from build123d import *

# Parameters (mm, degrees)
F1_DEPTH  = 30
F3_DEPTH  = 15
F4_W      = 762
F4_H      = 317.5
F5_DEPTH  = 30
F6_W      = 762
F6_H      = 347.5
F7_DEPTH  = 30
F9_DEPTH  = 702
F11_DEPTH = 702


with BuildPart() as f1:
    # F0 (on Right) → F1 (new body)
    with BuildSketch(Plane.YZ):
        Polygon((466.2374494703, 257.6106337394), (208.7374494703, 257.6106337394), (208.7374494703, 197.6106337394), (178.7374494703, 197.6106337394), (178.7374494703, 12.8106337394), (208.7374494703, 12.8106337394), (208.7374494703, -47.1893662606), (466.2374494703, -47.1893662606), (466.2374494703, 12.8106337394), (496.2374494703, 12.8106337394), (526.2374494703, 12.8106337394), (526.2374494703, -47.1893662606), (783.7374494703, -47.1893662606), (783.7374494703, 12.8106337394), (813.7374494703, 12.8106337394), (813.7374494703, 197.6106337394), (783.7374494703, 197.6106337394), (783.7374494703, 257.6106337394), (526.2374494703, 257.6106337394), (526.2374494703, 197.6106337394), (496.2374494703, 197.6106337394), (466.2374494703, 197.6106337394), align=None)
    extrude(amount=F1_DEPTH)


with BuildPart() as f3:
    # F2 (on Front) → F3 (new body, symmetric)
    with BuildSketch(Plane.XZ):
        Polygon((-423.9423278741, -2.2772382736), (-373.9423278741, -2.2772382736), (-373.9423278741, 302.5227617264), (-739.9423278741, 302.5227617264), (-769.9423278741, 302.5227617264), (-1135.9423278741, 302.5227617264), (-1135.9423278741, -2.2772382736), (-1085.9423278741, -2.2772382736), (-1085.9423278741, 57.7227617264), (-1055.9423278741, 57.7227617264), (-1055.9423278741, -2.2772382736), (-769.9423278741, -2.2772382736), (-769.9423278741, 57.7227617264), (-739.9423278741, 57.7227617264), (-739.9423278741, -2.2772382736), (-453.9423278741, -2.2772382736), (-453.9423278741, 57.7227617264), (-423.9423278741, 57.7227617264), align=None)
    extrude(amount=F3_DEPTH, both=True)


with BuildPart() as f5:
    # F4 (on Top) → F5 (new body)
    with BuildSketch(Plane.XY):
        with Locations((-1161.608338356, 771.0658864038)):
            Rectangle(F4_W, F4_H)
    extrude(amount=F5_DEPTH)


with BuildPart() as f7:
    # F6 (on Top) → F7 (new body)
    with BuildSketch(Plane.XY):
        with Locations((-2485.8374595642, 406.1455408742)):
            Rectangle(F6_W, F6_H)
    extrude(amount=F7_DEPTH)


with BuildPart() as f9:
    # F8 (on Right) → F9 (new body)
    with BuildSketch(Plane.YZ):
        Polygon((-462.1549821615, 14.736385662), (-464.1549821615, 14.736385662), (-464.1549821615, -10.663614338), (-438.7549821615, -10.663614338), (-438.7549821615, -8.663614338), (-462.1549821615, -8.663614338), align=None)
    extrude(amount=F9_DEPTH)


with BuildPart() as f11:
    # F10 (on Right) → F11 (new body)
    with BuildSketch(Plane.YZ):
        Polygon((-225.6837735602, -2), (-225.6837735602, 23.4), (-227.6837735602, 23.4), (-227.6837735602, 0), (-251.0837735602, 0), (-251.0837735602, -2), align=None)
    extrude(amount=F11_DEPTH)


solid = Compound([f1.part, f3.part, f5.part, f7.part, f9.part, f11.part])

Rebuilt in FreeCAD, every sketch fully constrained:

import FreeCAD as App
import Part
import Sketcher

V = App.Vector
Q = App.Units.Quantity

doc = App.newDocument("Part")
body = doc.addObject("PartDesign::Body", "Body")

# Sketch on YZ plane
sketch1 = body.newObject("Sketcher::SketchObject", "Sketch")
sketch1.AttachmentSupport = (doc.getObject("YZ_Plane"), [""])
sketch1.MapMode = "FlatFace"
sketch1.addGeometry([
    Part.LineSegment(V(466, 258, 0), V(209, 258, 0)),  # 0
    Part.LineSegment(V(209, 258, 0), V(209, 198, 0)),  # 1
    Part.LineSegment(V(209, 198, 0), V(179, 198, 0)),  # 2
    Part.LineSegment(V(179, 198, 0), V(179, 13, 0)),  # 3
    Part.LineSegment(V(179, 13, 0), V(209, 13, 0)),  # 4
    Part.LineSegment(V(209, 13, 0), V(209, -47, 0)),  # 5
    Part.LineSegment(V(209, -47, 0), V(466, -47, 0)),  # 6
    Part.LineSegment(V(466, -47, 0), V(466, 13, 0)),  # 7
    Part.LineSegment(V(466, 13, 0), V(526, 13, 0)),  # 8
    Part.LineSegment(V(526, 13, 0), V(526, -47, 0)),  # 9
    Part.LineSegment(V(526, -47, 0), V(784, -47, 0)),  # 10
    Part.LineSegment(V(784, -47, 0), V(784, 13, 0)),  # 11
    Part.LineSegment(V(784, 13, 0), V(814, 13, 0)),  # 12
    Part.LineSegment(V(814, 13, 0), V(814, 198, 0)),  # 13
    Part.LineSegment(V(814, 198, 0), V(784, 198, 0)),  # 14
    Part.LineSegment(V(784, 198, 0), V(784, 258, 0)),  # 15
    Part.LineSegment(V(784, 258, 0), V(526, 258, 0)),  # 16
    Part.LineSegment(V(526, 258, 0), V(526, 198, 0)),  # 17
    Part.LineSegment(V(526, 198, 0), V(466, 198, 0)),  # 18
    Part.LineSegment(V(466, 198, 0), V(466, 258, 0)),  # 19
], False)
sketch1.addConstraint([
    Sketcher.Constraint("Coincident", 0, 2, 1, 1),
    Sketcher.Constraint("Coincident", 1, 2, 2, 1),
    Sketcher.Constraint("Coincident", 2, 2, 3, 1),
    Sketcher.Constraint("Coincident", 3, 2, 4, 1),
    Sketcher.Constraint("Coincident", 4, 2, 5, 1),
    Sketcher.Constraint("Coincident", 5, 2, 6, 1),
    Sketcher.Constraint("Coincident", 6, 2, 7, 1),
    Sketcher.Constraint("Coincident", 7, 2, 8, 1),
    Sketcher.Constraint("Coincident", 8, 2, 9, 1),
    Sketcher.Constraint("Coincident", 9, 2, 10, 1),
    Sketcher.Constraint("Coincident", 10, 2, 11, 1),
    Sketcher.Constraint("Coincident", 11, 2, 12, 1),
    Sketcher.Constraint("Coincident", 12, 2, 13, 1),
    Sketcher.Constraint("Coincident", 13, 2, 14, 1),
    Sketcher.Constraint("Coincident", 14, 2, 15, 1),
    Sketcher.Constraint("Coincident", 15, 2, 16, 1),
    Sketcher.Constraint("Coincident", 16, 2, 17, 1),
    Sketcher.Constraint("Coincident", 17, 2, 18, 1),
    Sketcher.Constraint("Coincident", 18, 2, 19, 1),
    Sketcher.Constraint("Coincident", 19, 2, 0, 1),
    Sketcher.Constraint("Horizontal", 0),
    Sketcher.Constraint("Vertical", 1),
    Sketcher.Constraint("Horizontal", 2),
    Sketcher.Constraint("Vertical", 3),
    Sketcher.Constraint("Horizontal", 4),
    Sketcher.Constraint("Vertical", 5),
    Sketcher.Constraint("Horizontal", 6),
    Sketcher.Constraint("Vertical", 7),
    Sketcher.Constraint("Horizontal", 8),
    Sketcher.Constraint("Vertical", 9),
    Sketcher.Constraint("Horizontal", 10),
    Sketcher.Constraint("Vertical", 11),
    Sketcher.Constraint("Horizontal", 12),
    Sketcher.Constraint("Vertical", 13),
    Sketcher.Constraint("Horizontal", 14),
    Sketcher.Constraint("Vertical", 15),
    Sketcher.Constraint("Horizontal", 16),
    Sketcher.Constraint("Vertical", 17),
    Sketcher.Constraint("Horizontal", 18),
    Sketcher.Constraint("Vertical", 19),
    Sketcher.Constraint("Horizontal", 4, 2, 7, 2),
    Sketcher.Constraint("Horizontal", 6, 2, 9, 2),
    Sketcher.Constraint("Horizontal", 8, 2, 11, 2),
    Sketcher.Constraint("Horizontal", 2, 2, 13, 2),
    Sketcher.Constraint("Horizontal", 0, 2, 15, 2),
    Sketcher.Constraint("Horizontal", 14, 2, 17, 2),
    Sketcher.Constraint("Vertical", 1, 2, 4, 2),
    Sketcher.Constraint("Vertical", 11, 2, 14, 2),
    Sketcher.Constraint("Vertical", 9, 2, 16, 2),
    Sketcher.Constraint("Vertical", 7, 2, 18, 2),
    Sketcher.Constraint("Equal", 6, 10),
    Sketcher.Constraint("Equal", 4, 12),
    Sketcher.Constraint("Equal", 18, 1),
    Sketcher.Constraint("Equal", 1, 5),
    Sketcher.Constraint("DistanceX", 2, 2, 2, 1, Q("30 mm")),
    Sketcher.Constraint("DistanceX", 8, 1, 8, 2, Q("60 mm")),
    Sketcher.Constraint("DistanceX", 0, 2, 0, 1, Q("257.5 mm")),
    Sketcher.Constraint("DistanceY", 3, 2, 3, 1, Q("184.8 mm")),
    Sketcher.Constraint("DistanceX", -1, 1, 0, 2, Q("208.737449 mm")),
    Sketcher.Constraint("DistanceY", -1, 1, 0, 2, Q("257.610634 mm")),
])
pad1 = body.newObject("PartDesign::Pad", "Pad")
pad1.Profile = sketch1
pad1.Length = 30
body2 = doc.addObject("PartDesign::Body", "Body001")

# Sketch on XZ plane
sketch2 = body2.newObject("Sketcher::SketchObject", "Sketch001")
sketch2.AttachmentSupport = (doc.getObject("XZ_Plane001"), [""])
sketch2.MapMode = "FlatFace"
sketch2.addGeometry([
    Part.LineSegment(V(-424, -2, 0), V(-374, -2, 0)),  # 0
    Part.LineSegment(V(-374, -2, 0), V(-374, 303, 0)),  # 1
    Part.LineSegment(V(-374, 303, 0), V(-1136, 303, 0)),  # 2
    Part.LineSegment(V(-1136, 303, 0), V(-1136, -2, 0)),  # 3
    Part.LineSegment(V(-1136, -2, 0), V(-1086, -2, 0)),  # 4
    Part.LineSegment(V(-1086, -2, 0), V(-1086, 58, 0)),  # 5
    Part.LineSegment(V(-1086, 58, 0), V(-1056, 58, 0)),  # 6
    Part.LineSegment(V(-1056, 58, 0), V(-1056, -2, 0)),  # 7
    Part.LineSegment(V(-1056, -2, 0), V(-770, -2, 0)),  # 8
    Part.LineSegment(V(-770, -2, 0), V(-770, 58, 0)),  # 9
    Part.LineSegment(V(-770, 58, 0), V(-740, 58, 0)),  # 10
    Part.LineSegment(V(-740, 58, 0), V(-740, -2, 0)),  # 11
    Part.LineSegment(V(-740, -2, 0), V(-454, -2, 0)),  # 12
    Part.LineSegment(V(-454, -2, 0), V(-454, 58, 0)),  # 13
    Part.LineSegment(V(-454, 58, 0), V(-424, 58, 0)),  # 14
    Part.LineSegment(V(-424, 58, 0), V(-424, -2, 0)),  # 15
], False)
sketch2.addConstraint([
    Sketcher.Constraint("Coincident", 0, 2, 1, 1),
    Sketcher.Constraint("Coincident", 1, 2, 2, 1),
    Sketcher.Constraint("Coincident", 2, 2, 3, 1),
    Sketcher.Constraint("Coincident", 3, 2, 4, 1),
    Sketcher.Constraint("Coincident", 4, 2, 5, 1),
    Sketcher.Constraint("Coincident", 5, 2, 6, 1),
    Sketcher.Constraint("Coincident", 6, 2, 7, 1),
    Sketcher.Constraint("Coincident", 7, 2, 8, 1),
    Sketcher.Constraint("Coincident", 8, 2, 9, 1),
    Sketcher.Constraint("Coincident", 9, 2, 10, 1),
    Sketcher.Constraint("Coincident", 10, 2, 11, 1),
    Sketcher.Constraint("Coincident", 11, 2, 12, 1),
    Sketcher.Constraint("Coincident", 12, 2, 13, 1),
    Sketcher.Constraint("Coincident", 13, 2, 14, 1),
    Sketcher.Constraint("Coincident", 14, 2, 15, 1),
    Sketcher.Constraint("Coincident", 15, 2, 0, 1),
    Sketcher.Constraint("Horizontal", 0),
    Sketcher.Constraint("Vertical", 1),
    Sketcher.Constraint("Horizontal", 2),
    Sketcher.Constraint("Vertical", 3),
    Sketcher.Constraint("Horizontal", 4),
    Sketcher.Constraint("Vertical", 5),
    Sketcher.Constraint("Horizontal", 6),
    Sketcher.Constraint("Vertical", 7),
    Sketcher.Constraint("Horizontal", 8),
    Sketcher.Constraint("Vertical", 9),
    Sketcher.Constraint("Horizontal", 10),
    Sketcher.Constraint("Vertical", 11),
    Sketcher.Constraint("Horizontal", 12),
    Sketcher.Constraint("Vertical", 13),
    Sketcher.Constraint("Horizontal", 14),
    Sketcher.Constraint("Vertical", 15),
    Sketcher.Constraint("Horizontal", 0, 2, 3, 2),
    Sketcher.Constraint("Horizontal", 4, 2, 7, 2),
    Sketcher.Constraint("Horizontal", 6, 2, 9, 2),
    Sketcher.Constraint("Horizontal", 8, 2, 11, 2),
    Sketcher.Constraint("Horizontal", 10, 2, 13, 2),
    Sketcher.Constraint("Equal", 0, 4),
    Sketcher.Constraint("Equal", 6, 10),
    Sketcher.Constraint("Equal", 8, 12),
    Sketcher.Constraint("Equal", 10, 14),
    Sketcher.Constraint("DistanceX", 0, 1, 0, 2, Q("50 mm")),
    Sketcher.Constraint("DistanceX", 2, 2, 2, 1, Q("762 mm")),
    Sketcher.Constraint("DistanceX", 6, 1, 6, 2, Q("30 mm")),
    Sketcher.Constraint("DistanceY", 5, 1, 5, 2, Q("60 mm")),
    Sketcher.Constraint("DistanceY", 1, 1, 1, 2, Q("304.8 mm")),
    Sketcher.Constraint("DistanceY", 0, 2, -1, 1, Q("2.277238 mm")),
    Sketcher.Constraint("DistanceX", 0, 2, -1, 1, Q("373.942328 mm")),
])
pad2 = body2.newObject("PartDesign::Pad", "Pad001")
pad2.Profile = sketch2
pad2.Length = 30
pad2.Midplane = True
body3 = doc.addObject("PartDesign::Body", "Body002")

# Sketch on XY plane
sketch3 = body3.newObject("Sketcher::SketchObject", "Sketch002")
sketch3.AttachmentSupport = (doc.getObject("XY_Plane002"), [""])
sketch3.MapMode = "FlatFace"
sketch3.addGeometry([
    Part.LineSegment(V(-1543, 930, 0), V(-1543, 612, 0)),
    Part.LineSegment(V(-1543, 612, 0), V(-781, 612, 0)),
    Part.LineSegment(V(-781, 612, 0), V(-781, 930, 0)),
    Part.LineSegment(V(-781, 930, 0), V(-1543, 930, 0)),
], False)
sketch3.addConstraint([
    Sketcher.Constraint("Coincident", 0, 2, 1, 1),
    Sketcher.Constraint("Coincident", 1, 2, 2, 1),
    Sketcher.Constraint("Coincident", 2, 2, 3, 1),
    Sketcher.Constraint("Coincident", 3, 2, 0, 1),
    Sketcher.Constraint("Vertical", 0),
    Sketcher.Constraint("Horizontal", 1),
    Sketcher.Constraint("Vertical", 2),
    Sketcher.Constraint("Horizontal", 3),
    Sketcher.Constraint("DistanceX", 1, 1, 1, 2, Q("762 mm")),
    Sketcher.Constraint("DistanceY", 0, 2, 0, 1, Q("317.5 mm")),
    Sketcher.Constraint("DistanceX", 0, 2, -1, 1, Q("1542.608338 mm")),
    Sketcher.Constraint("DistanceY", -1, 1, 0, 2, Q("612.315886 mm")),
])
pad3 = body3.newObject("PartDesign::Pad", "Pad002")
pad3.Profile = sketch3
pad3.Length = 30
body4 = doc.addObject("PartDesign::Body", "Body003")

# Sketch on XY plane
sketch4 = body4.newObject("Sketcher::SketchObject", "Sketch003")
sketch4.AttachmentSupport = (doc.getObject("XY_Plane003"), [""])
sketch4.MapMode = "FlatFace"
sketch4.addGeometry([
    Part.LineSegment(V(-2867, 580, 0), V(-2867, 232, 0)),
    Part.LineSegment(V(-2867, 232, 0), V(-2105, 232, 0)),
    Part.LineSegment(V(-2105, 232, 0), V(-2105, 580, 0)),
    Part.LineSegment(V(-2105, 580, 0), V(-2867, 580, 0)),
], False)
sketch4.addConstraint([
    Sketcher.Constraint("Coincident", 0, 2, 1, 1),
    Sketcher.Constraint("Coincident", 1, 2, 2, 1),
    Sketcher.Constraint("Coincident", 2, 2, 3, 1),
    Sketcher.Constraint("Coincident", 3, 2, 0, 1),
    Sketcher.Constraint("Vertical", 0),
    Sketcher.Constraint("Horizontal", 1),
    Sketcher.Constraint("Vertical", 2),
    Sketcher.Constraint("Horizontal", 3),
    Sketcher.Constraint("DistanceX", 1, 1, 1, 2, Q("762 mm")),
    Sketcher.Constraint("DistanceY", 0, 2, 0, 1, Q("347.5 mm")),
    Sketcher.Constraint("DistanceX", 0, 2, -1, 1, Q("2866.83746 mm")),
    Sketcher.Constraint("DistanceY", -1, 1, 0, 2, Q("232.395541 mm")),
])
pad4 = body4.newObject("PartDesign::Pad", "Pad003")
pad4.Profile = sketch4
pad4.Length = 30
body5 = doc.addObject("PartDesign::Body", "Body004")

# Sketch on YZ plane
sketch5 = body5.newObject("Sketcher::SketchObject", "Sketch004")
sketch5.AttachmentSupport = (doc.getObject("YZ_Plane004"), [""])
sketch5.MapMode = "FlatFace"
sketch5.addGeometry([
    Part.LineSegment(V(-462.2, 14.7, 0), V(-464.2, 14.7, 0)),  # 0
    Part.LineSegment(V(-464.2, 14.7, 0), V(-464.2, -10.7, 0)),  # 1
    Part.LineSegment(V(-464.2, -10.7, 0), V(-438.8, -10.7, 0)),  # 2
    Part.LineSegment(V(-438.8, -10.7, 0), V(-438.8, -8.7, 0)),  # 3
    Part.LineSegment(V(-438.8, -8.7, 0), V(-462.2, -8.7, 0)),  # 4
    Part.LineSegment(V(-462.2, -8.7, 0), V(-462.2, 14.7, 0)),  # 5
], False)
sketch5.addConstraint([
    Sketcher.Constraint("Coincident", 0, 2, 1, 1),
    Sketcher.Constraint("Coincident", 1, 2, 2, 1),
    Sketcher.Constraint("Coincident", 2, 2, 3, 1),
    Sketcher.Constraint("Coincident", 3, 2, 4, 1),
    Sketcher.Constraint("Coincident", 4, 2, 5, 1),
    Sketcher.Constraint("Coincident", 5, 2, 0, 1),
    Sketcher.Constraint("Horizontal", 0),
    Sketcher.Constraint("Vertical", 1),
    Sketcher.Constraint("Horizontal", 2),
    Sketcher.Constraint("Vertical", 3),
    Sketcher.Constraint("Horizontal", 4),
    Sketcher.Constraint("Vertical", 5),
    Sketcher.Constraint("Equal", 2, 1),
    Sketcher.Constraint("Equal", 0, 3),
    Sketcher.Constraint("DistanceX", 0, 2, 0, 1, Q("2 mm")),
    Sketcher.Constraint("DistanceX", 2, 1, 2, 2, Q("25.4 mm")),
    Sketcher.Constraint("DistanceX", 0, 2, -1, 1, Q("464.154982 mm")),
    Sketcher.Constraint("DistanceY", -1, 1, 0, 2, Q("14.736386 mm")),
])
pad5 = body5.newObject("PartDesign::Pad", "Pad004")
pad5.Profile = sketch5
pad5.Length = 702
body6 = doc.addObject("PartDesign::Body", "Body005")

# Sketch on YZ plane
sketch6 = body6.newObject("Sketcher::SketchObject", "Sketch005")
sketch6.AttachmentSupport = (doc.getObject("YZ_Plane005"), [""])
sketch6.MapMode = "FlatFace"
sketch6.addGeometry([
    Part.LineSegment(V(-225.7, -2, 0), V(-225.7, 23.4, 0)),  # 0
    Part.LineSegment(V(-225.7, 23.4, 0), V(-227.7, 23.4, 0)),  # 1
    Part.LineSegment(V(-227.7, 23.4, 0), V(-227.7, 0, 0)),  # 2
    Part.LineSegment(V(-227.7, 0, 0), V(-251.1, 0, 0)),  # 3
    Part.LineSegment(V(-251.1, 0, 0), V(-251.1, -2, 0)),  # 4
    Part.LineSegment(V(-251.1, -2, 0), V(-225.7, -2, 0)),  # 5
], False)
sketch6.addConstraint([
    Sketcher.Constraint("Coincident", 0, 2, 1, 1),
    Sketcher.Constraint("Coincident", 1, 2, 2, 1),
    Sketcher.Constraint("Coincident", 2, 2, 3, 1),
    Sketcher.Constraint("Coincident", 3, 2, 4, 1),
    Sketcher.Constraint("Coincident", 4, 2, 5, 1),
    Sketcher.Constraint("Coincident", 5, 2, 0, 1),
    Sketcher.Constraint("Vertical", 0),
    Sketcher.Constraint("Horizontal", 1),
    Sketcher.Constraint("Vertical", 2),
    Sketcher.Constraint("Horizontal", 3),
    Sketcher.Constraint("Vertical", 4),
    Sketcher.Constraint("Horizontal", 5),
    Sketcher.Constraint("PointOnObject", 2, 2, -1),
    Sketcher.Constraint("Equal", 5, 0),
    Sketcher.Constraint("Equal", 3, 2),
    Sketcher.Constraint("DistanceX", 1, 2, 1, 1, Q("2 mm")),
    Sketcher.Constraint("DistanceX", 3, 2, 3, 1, Q("23.4 mm")),
    Sketcher.Constraint("DistanceX", 0, 2, -1, 1, Q("225.683774 mm")),
])
pad6 = body6.newObject("PartDesign::Pad", "Pad005")
pad6.Profile = sketch6
pad6.Length = 702

doc.recompute()
